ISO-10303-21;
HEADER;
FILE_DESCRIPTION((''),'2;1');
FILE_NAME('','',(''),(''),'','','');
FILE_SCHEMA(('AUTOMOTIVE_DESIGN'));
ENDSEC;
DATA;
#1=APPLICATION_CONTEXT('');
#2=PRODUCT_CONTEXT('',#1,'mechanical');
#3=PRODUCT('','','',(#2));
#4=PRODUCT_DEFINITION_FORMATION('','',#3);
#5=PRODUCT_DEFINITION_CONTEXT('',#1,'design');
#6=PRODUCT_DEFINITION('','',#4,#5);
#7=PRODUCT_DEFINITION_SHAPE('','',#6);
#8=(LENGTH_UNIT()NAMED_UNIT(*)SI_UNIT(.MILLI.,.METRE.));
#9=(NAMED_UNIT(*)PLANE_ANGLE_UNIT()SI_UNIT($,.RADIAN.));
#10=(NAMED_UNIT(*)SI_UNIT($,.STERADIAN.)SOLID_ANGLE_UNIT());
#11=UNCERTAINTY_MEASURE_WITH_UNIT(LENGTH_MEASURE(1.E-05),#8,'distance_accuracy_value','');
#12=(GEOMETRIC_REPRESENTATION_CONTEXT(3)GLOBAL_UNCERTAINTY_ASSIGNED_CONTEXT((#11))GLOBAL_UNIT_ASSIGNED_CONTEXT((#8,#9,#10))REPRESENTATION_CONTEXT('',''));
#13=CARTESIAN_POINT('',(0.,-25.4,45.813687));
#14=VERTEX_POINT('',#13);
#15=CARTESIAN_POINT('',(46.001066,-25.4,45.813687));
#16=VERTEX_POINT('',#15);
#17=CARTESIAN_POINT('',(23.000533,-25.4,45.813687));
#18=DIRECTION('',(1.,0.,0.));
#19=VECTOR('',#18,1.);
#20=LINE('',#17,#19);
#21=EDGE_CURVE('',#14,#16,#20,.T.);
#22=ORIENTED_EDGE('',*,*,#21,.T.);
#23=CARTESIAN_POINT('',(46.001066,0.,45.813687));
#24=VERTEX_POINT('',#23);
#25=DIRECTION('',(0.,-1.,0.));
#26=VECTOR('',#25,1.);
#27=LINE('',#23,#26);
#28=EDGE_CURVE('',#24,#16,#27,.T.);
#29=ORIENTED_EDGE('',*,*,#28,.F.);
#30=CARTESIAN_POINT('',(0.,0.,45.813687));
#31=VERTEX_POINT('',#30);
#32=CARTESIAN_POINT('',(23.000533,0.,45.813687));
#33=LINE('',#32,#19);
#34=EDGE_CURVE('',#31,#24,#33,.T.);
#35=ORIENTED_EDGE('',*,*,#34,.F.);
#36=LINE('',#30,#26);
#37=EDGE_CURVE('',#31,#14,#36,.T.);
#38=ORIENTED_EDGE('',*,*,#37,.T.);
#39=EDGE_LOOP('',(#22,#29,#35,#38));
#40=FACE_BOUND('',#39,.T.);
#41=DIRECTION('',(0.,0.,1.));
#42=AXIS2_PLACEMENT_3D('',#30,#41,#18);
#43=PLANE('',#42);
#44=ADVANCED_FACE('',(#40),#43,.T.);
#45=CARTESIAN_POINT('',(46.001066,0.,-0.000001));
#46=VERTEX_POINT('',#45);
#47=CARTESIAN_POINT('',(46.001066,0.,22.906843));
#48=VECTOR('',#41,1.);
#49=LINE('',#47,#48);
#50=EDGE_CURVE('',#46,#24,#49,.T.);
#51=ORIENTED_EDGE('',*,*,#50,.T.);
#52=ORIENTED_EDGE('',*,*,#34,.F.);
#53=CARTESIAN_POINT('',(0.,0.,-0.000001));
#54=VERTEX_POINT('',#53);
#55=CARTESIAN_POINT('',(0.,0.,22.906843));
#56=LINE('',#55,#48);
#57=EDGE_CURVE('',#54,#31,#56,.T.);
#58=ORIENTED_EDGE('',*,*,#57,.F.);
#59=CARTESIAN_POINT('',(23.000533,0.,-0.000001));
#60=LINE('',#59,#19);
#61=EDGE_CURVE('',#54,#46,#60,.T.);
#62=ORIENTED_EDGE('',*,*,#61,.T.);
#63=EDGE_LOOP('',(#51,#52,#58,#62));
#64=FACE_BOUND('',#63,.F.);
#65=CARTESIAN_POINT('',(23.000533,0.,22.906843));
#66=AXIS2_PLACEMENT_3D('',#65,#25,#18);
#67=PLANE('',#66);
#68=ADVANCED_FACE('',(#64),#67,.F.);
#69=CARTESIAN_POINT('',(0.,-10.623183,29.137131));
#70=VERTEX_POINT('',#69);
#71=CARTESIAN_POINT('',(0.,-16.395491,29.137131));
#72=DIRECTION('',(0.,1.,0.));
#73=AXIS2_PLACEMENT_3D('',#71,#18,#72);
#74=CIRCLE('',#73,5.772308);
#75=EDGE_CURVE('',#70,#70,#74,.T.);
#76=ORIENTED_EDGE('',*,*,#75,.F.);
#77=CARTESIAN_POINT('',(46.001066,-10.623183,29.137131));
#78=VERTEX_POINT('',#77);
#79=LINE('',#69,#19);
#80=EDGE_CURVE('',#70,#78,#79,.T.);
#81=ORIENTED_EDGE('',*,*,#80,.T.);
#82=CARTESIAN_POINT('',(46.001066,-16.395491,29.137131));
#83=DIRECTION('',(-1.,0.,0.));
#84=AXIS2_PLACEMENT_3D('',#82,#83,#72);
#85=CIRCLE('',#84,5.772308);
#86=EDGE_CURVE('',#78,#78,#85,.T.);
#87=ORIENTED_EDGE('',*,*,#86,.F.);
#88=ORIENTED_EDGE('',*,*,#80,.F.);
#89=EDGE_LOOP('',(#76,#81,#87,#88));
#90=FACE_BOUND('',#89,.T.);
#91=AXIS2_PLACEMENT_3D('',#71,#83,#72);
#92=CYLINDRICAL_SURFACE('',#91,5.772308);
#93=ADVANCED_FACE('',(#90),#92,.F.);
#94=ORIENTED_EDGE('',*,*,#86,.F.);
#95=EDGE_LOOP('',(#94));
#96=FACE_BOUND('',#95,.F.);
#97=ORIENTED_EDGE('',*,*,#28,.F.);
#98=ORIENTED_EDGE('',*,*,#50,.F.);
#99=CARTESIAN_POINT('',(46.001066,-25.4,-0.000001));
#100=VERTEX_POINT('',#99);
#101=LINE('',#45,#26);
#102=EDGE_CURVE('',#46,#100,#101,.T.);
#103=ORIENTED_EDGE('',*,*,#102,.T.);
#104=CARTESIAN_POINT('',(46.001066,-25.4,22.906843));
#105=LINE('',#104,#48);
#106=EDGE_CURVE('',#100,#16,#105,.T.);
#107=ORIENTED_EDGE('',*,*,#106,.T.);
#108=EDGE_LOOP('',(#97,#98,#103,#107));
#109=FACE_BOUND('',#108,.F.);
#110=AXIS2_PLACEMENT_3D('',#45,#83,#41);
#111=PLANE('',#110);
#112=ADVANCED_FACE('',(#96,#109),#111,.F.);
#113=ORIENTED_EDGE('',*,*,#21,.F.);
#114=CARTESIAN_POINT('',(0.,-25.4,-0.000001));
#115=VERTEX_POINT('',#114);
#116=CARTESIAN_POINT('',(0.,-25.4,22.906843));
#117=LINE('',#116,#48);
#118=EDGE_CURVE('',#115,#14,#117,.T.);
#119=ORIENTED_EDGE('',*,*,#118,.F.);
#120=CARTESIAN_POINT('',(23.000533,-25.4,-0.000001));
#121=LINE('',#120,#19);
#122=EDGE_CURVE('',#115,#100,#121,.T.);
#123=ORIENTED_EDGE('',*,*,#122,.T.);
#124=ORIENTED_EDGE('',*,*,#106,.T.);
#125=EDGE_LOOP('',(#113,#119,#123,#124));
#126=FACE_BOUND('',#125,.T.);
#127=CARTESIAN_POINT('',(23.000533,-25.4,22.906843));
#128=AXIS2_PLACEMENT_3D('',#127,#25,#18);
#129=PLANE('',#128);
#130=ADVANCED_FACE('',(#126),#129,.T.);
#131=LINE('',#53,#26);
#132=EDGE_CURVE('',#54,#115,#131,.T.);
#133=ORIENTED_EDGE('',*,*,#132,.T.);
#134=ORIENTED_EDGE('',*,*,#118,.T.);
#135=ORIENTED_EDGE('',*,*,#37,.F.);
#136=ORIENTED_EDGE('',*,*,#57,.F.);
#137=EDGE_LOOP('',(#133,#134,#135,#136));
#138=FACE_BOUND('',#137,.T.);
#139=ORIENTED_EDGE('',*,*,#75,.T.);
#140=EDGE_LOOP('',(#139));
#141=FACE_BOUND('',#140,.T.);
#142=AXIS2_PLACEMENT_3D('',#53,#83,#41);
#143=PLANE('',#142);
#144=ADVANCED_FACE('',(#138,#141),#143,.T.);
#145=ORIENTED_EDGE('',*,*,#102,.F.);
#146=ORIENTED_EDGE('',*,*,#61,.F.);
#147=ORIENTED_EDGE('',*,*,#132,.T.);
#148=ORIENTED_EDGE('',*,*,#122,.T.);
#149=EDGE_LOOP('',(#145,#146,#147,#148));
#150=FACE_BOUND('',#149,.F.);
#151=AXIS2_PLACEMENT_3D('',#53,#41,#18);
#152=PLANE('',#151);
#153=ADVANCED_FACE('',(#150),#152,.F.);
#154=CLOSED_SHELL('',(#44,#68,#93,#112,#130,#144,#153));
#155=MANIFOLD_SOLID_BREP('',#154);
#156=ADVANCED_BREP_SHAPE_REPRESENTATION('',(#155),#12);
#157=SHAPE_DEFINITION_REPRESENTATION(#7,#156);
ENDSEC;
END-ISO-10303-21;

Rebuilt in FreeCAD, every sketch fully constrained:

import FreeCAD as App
import Part
import Sketcher
Q = App.Units.Quantity


def add_polygon(sketch, points):
    """Adds a closed chain of lines whose ends are joined by coincident constraints."""
    first, n = sketch.GeometryCount, len(points)
    for a, b in zip(points, points[1:] + points[:1]):
        sketch.addGeometry(Part.LineSegment(App.Vector(*a, 0), App.Vector(*b, 0)), False)
    for i in range(n):
        sketch.addConstraint(Sketcher.Constraint("Coincident", first + i, 2, first + (i + 1) % n, 1))

doc = App.newDocument("Part")
params = doc.addObject("Spreadsheet::Sheet", "Params")
for row, (alias, value) in enumerate([
    ("pad1_length", "1 in"),
], start=1):
    params.set(f"A{row}", alias)
    params.set(f"B{row}", "=" + value)
    params.setAlias(f"B{row}", alias)

body = doc.addObject("PartDesign::Body", "Body")

sketch1 = body.newObject("Sketcher::SketchObject", "Sketch")
sketch1.AttachmentSupport = (doc.getObject("XZ_Plane"), [""])
sketch1.MapMode = "FlatFace"
add_polygon(sketch1, [(0, 46), (0, 0), (46, 0), (46, 46)])
sketch1.addConstraint([
    Sketcher.Constraint("Vertical", 0),
    Sketcher.Constraint("Horizontal", 1),
    Sketcher.Constraint("Vertical", 2),
    Sketcher.Constraint("Horizontal", 3),
    Sketcher.Constraint("Coincident", 0, 2, -1, 1),
    Sketcher.Constraint("DistanceX", 1, 1, 1, 2, Q("46.001066 mm")),
    Sketcher.Constraint("DistanceY", 0, 2, 0, 1, Q("45.813687 mm")),
])
pad1 = body.newObject("PartDesign::Pad", "Pad")
pad1.Profile = sketch1
pad1.setExpression("Length", "Params.pad1_length")

sketch2 = body.newObject("Sketcher::SketchObject", "Sketch001")
sketch2.AttachmentSupport = (doc.getObject("YZ_Plane"), [""])
sketch2.MapMode = "FlatFace"
sketch2.addGeometry(Part.Circle(App.Vector(-16, 29, 0), App.Vector(0, 0, 1), 6), False)
sketch2.addConstraint([
    Sketcher.Constraint("Diameter", 0, Q("11.544616 mm")),
    Sketcher.Constraint("DistanceX", 0, 3, -1, 1, Q("16.395491 mm")),
    Sketcher.Constraint("DistanceY", -1, 1, 0, 3, Q("29.137131 mm")),
])
pocket1 = body.newObject("PartDesign::Pocket", "Pocket")
pocket1.Profile = sketch2
pocket1.Type = "ThroughAll"
pocket1.Reversed = True

doc.recompute()
